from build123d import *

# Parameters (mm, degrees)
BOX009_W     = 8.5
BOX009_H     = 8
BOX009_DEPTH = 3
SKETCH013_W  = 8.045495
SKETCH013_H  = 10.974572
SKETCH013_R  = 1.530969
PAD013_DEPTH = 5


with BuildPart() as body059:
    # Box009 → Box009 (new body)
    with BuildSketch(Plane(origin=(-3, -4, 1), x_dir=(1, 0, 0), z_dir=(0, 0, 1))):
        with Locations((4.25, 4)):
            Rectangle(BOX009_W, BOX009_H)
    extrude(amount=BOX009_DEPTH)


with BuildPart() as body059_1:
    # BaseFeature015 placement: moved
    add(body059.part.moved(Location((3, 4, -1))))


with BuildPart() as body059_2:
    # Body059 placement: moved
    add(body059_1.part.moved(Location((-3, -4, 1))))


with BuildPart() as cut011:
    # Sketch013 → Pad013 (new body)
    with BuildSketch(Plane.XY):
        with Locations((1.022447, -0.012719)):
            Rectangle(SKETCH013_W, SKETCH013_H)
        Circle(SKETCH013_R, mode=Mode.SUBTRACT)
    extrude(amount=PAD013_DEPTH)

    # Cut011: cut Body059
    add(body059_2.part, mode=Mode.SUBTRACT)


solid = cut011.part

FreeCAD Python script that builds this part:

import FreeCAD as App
import Part
import Sketcher
from FreeCAD import Vector

doc = App.newDocument("Part")
body = doc.addObject("PartDesign::Body", "Body")

# Sketch on XY plane
sketch1 = body.newObject("Sketcher::SketchObject", "Sketch")
sketch1.AttachmentSupport = (doc.getObject("XY_Plane"), [""])
sketch1.MapMode = "FlatFace"
sketch1.AttachmentOffset = App.Placement(Vector(0, 0, 1), App.Rotation())
sketch1.addGeometry([
    Part.LineSegment(Vector(-3, 4, 0), Vector(-3, -4, 0)),
    Part.LineSegment(Vector(-3, -4, 0), Vector(5.5, -4, 0)),
    Part.LineSegment(Vector(5.5, -4, 0), Vector(5.5, 4, 0)),
    Part.LineSegment(Vector(5.5, 4, 0), Vector(-3, 4, 0)),
], False)
sketch1.addConstraint([
    Sketcher.Constraint("Coincident", 0, 2, 1, 1),
    Sketcher.Constraint("Coincident", 1, 2, 2, 1),
    Sketcher.Constraint("Coincident", 2, 2, 3, 1),
    Sketcher.Constraint("Coincident", 3, 2, 0, 1),
    Sketcher.Constraint("Vertical", 0),
    Sketcher.Constraint("Horizontal", 1),
    Sketcher.Constraint("Vertical", 2),
    Sketcher.Constraint("Horizontal", 3),
    Sketcher.Constraint("DistanceY", 0, 2, 0, 1, 8.0),
    Sketcher.Constraint("DistanceX", 1, 1, 1, 2, 8.5),
    Sketcher.Constraint("DistanceX", 0, 2, -1, 1, 3.0),
    Sketcher.Constraint("DistanceY", 0, 2, -1, 1, 4.0),
])
pad1 = body.newObject("PartDesign::Pad", "Pad")
pad1.Profile = sketch1
pad1.Length = 3
body2 = doc.addObject("PartDesign::Body", "Body001")
doc.recompute()

body.Placement = App.Placement(Vector(3, 4, -1), App.Rotation(Vector(0, 0, 1), 0))
boolean = body2.newObject("PartDesign::Boolean", "Boolean")
boolean.Type = "Fuse"
boolean.addObjects([body])
body3 = doc.addObject("PartDesign::Body", "Body002")
doc.recompute()

body2.Placement = App.Placement(Vector(-3, -4, 1), App.Rotation(Vector(0, 0, 1), 0))
boolean2 = body3.newObject("PartDesign::Boolean", "Boolean001")
boolean2.Type = "Fuse"
boolean2.addObjects([body2])
body4 = doc.addObject("PartDesign::Body", "Body003")

# Sketch on XY plane
sketch2 = body4.newObject("Sketcher::SketchObject", "Sketch001")
sketch2.AttachmentSupport = (doc.getObject("XY_Plane003"), [""])
sketch2.MapMode = "FlatFace"
sketch2.addGeometry([
    Part.LineSegment(Vector(-3.0003, 5.474567, 0), Vector(-3.0003, -5.500005, 0)),  # 0
    Part.LineSegment(Vector(-3.0003, -5.500005, 0), Vector(5.045195, -5.500005, 0)),  # 1
    Part.LineSegment(Vector(5.045195, -5.500005, 0), Vector(5.045195, 5.474567, 0)),  # 2
    Part.LineSegment(Vector(5.045195, 5.474567, 0), Vector(-3.0003, 5.474567, 0)),  # 3
    Part.Circle(Vector(0, 0, 0), Vector(0, 0, 1), 1.530969),  # 4
], False)
sketch2.addConstraint([
    Sketcher.Constraint("Coincident", 0, 2, 1, 1),
    Sketcher.Constraint("Coincident", 1, 2, 2, 1),
    Sketcher.Constraint("Coincident", 2, 2, 3, 1),
    Sketcher.Constraint("Coincident", 3, 2, 0, 1),
    Sketcher.Constraint("Vertical", 0),
    Sketcher.Constraint("Horizontal", 1),
    Sketcher.Constraint("Vertical", 2),
    Sketcher.Constraint("Horizontal", 3),
    Sketcher.Constraint("Coincident", 4, 3, -1, 1),
    Sketcher.Constraint("Diameter", 4, 3.061938),
    Sketcher.Constraint("DistanceX", 0, 2, -1, 1, 3.0003),
    Sketcher.Constraint("DistanceX", 1, 1, 1, 2, 8.045495),
    Sketcher.Constraint("DistanceY", 0, 2, 0, 1, 10.974572),
    Sketcher.Constraint("DistanceY", 0, 2, -1, 1, 5.500005),
])
pad2 = body4.newObject("PartDesign::Pad", "Pad001")
pad2.Profile = sketch2
pad2.Length = 5
doc.recompute()

boolean3 = body4.newObject("PartDesign::Boolean", "Boolean002")
boolean3.Type = "Cut"
boolean3.addObjects([body3])

doc.recompute()
